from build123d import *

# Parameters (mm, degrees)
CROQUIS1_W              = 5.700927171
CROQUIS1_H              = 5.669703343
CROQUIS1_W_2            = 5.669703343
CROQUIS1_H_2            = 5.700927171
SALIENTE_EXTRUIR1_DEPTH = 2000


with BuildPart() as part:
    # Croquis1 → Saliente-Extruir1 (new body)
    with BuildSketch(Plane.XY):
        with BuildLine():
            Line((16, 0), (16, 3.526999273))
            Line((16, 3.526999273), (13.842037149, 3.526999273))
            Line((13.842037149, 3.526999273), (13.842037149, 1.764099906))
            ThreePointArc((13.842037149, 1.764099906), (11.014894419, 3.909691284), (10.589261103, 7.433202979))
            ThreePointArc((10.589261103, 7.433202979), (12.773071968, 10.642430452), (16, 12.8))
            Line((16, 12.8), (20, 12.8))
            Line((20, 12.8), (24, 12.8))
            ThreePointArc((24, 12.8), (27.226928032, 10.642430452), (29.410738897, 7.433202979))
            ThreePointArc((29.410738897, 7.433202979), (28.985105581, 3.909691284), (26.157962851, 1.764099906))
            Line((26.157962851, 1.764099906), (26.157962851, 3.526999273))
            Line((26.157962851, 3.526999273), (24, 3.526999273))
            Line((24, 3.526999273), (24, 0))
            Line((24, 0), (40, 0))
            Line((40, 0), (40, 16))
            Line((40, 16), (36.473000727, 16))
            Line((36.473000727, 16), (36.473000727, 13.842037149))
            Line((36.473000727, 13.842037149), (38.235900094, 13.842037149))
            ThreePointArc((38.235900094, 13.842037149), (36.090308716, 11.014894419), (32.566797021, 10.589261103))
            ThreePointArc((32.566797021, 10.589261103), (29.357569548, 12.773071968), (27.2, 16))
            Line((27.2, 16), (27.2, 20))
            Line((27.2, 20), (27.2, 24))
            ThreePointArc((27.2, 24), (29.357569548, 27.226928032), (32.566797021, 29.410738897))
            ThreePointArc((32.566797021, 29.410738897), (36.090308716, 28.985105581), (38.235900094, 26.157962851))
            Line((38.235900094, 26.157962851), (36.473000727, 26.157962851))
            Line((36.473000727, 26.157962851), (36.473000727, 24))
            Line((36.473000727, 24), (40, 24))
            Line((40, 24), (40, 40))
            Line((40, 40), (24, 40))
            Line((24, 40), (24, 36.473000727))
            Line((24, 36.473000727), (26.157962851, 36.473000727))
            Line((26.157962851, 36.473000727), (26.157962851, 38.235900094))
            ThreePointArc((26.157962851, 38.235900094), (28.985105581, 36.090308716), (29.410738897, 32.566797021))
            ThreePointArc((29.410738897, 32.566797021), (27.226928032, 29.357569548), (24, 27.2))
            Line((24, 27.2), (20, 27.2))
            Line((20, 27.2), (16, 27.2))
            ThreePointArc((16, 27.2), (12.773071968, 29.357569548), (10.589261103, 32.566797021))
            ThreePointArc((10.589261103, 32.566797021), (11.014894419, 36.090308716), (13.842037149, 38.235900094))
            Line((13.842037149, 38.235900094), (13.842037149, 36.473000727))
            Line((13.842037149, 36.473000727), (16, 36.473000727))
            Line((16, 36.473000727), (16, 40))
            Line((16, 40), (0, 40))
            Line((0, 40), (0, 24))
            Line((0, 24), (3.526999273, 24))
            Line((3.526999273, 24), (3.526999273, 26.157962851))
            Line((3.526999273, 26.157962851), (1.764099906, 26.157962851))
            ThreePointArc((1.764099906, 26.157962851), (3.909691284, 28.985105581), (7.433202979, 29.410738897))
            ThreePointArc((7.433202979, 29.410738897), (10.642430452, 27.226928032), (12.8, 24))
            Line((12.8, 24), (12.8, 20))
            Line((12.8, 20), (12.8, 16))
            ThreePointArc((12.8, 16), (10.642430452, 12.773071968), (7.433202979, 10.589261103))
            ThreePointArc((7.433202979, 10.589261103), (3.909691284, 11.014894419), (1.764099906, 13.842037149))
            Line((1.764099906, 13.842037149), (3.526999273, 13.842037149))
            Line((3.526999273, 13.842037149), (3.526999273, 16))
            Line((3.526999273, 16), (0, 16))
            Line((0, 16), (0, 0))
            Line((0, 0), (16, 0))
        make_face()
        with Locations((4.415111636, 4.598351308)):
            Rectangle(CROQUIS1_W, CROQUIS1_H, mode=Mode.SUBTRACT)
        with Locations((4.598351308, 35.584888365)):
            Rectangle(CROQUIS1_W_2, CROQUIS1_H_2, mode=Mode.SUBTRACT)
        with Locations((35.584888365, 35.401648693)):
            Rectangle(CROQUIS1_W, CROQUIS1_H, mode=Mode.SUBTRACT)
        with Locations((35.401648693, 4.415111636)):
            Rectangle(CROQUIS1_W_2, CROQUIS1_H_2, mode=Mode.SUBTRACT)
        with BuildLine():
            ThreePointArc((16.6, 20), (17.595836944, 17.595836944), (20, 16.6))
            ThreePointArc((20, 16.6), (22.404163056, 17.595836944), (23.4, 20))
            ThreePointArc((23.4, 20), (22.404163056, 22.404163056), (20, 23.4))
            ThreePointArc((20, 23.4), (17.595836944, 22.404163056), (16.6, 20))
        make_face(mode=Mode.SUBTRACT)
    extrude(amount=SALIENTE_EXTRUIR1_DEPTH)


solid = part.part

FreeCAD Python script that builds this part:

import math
import FreeCAD as App
import Part
import Sketcher
from FreeCAD import Vector
Q = App.Units.Quantity

doc = App.newDocument("Part")
body = doc.addObject("PartDesign::Body", "Body")

sketch1 = doc.addObject("Sketcher::SketchObject", "Sketch")
body.addObject(sketch1)
sketch1.AttachmentSupport = (doc.XY_Plane, [""])
sketch1.MapMode = "FlatFace"
sketch1.addGeometry([
    Part.LineSegment(Vector(16, 0, 0), Vector(16, 3.5, 0)),
    Part.LineSegment(Vector(16, 3.5, 0), Vector(13.8, 3.5, 0)),
    Part.LineSegment(Vector(13.8, 3.5, 0), Vector(13.8, 1.8, 0)),
    Part.ArcOfCircle(Part.Circle(Vector(15, 6.2, 0), Vector(0, 0, 1), 4.5), math.radians(164), math.radians(256)),
    Part.ArcOfCircle(Part.Circle(Vector(19.9, 3.4, 0), Vector(0, 0, 1), 10.2), math.radians(113), math.radians(157)),
    Part.LineSegment(Vector(16, 12.8, 0), Vector(24, 12.8, 0)),
    Part.ArcOfCircle(Part.Circle(Vector(20.1, 3.4, 0), Vector(0, 0, 1), 10.2), math.radians(23), math.radians(67)),
    Part.ArcOfCircle(Part.Circle(Vector(25, 6.2, 0), Vector(0, 0, 1), 4.5), math.radians(-76), math.radians(16)),
    Part.LineSegment(Vector(26.2, 1.8, 0), Vector(26.2, 3.5, 0)),
    Part.LineSegment(Vector(26.2, 3.5, 0), Vector(24, 3.5, 0)),
    Part.LineSegment(Vector(24, 3.5, 0), Vector(24, 0, 0)),
    Part.LineSegment(Vector(24, 0, 0), Vector(40, 0, 0)),
    Part.LineSegment(Vector(40, 0, 0), Vector(40, 16, 0)),
    Part.LineSegment(Vector(40, 16, 0), Vector(36.5, 16, 0)),
    Part.LineSegment(Vector(36.5, 16, 0), Vector(36.5, 13.8, 0)),
    Part.LineSegment(Vector(36.5, 13.8, 0), Vector(38.2, 13.8, 0)),
    Part.ArcOfCircle(Part.Circle(Vector(33.8, 15, 0), Vector(0, 0, 1), 4.5), math.radians(-106), math.radians(-14)),
    Part.ArcOfCircle(Part.Circle(Vector(36.6, 19.9, 0), Vector(0, 0, 1), 10.2), math.radians(-157), math.radians(-113)),
    Part.LineSegment(Vector(27.2, 16, 0), Vector(27.2, 24, 0)),
    Part.ArcOfCircle(Part.Circle(Vector(36.6, 20.1, 0), Vector(0, 0, 1), 10.2), math.radians(113), math.radians(157)),
    Part.ArcOfCircle(Part.Circle(Vector(33.8, 25, 0), Vector(0, 0, 1), 4.5), math.radians(14), math.radians(106)),
    Part.LineSegment(Vector(38.2, 26.2, 0), Vector(36.5, 26.2, 0)),
    Part.LineSegment(Vector(36.5, 26.2, 0), Vector(36.5, 24, 0)),
    Part.LineSegment(Vector(36.5, 24, 0), Vector(40, 24, 0)),
    Part.LineSegment(Vector(40, 24, 0), Vector(40, 40, 0)),
    Part.LineSegment(Vector(40, 40, 0), Vector(24, 40, 0)),
    Part.LineSegment(Vector(24, 40, 0), Vector(24, 36.5, 0)),
    Part.LineSegment(Vector(24, 36.5, 0), Vector(26.2, 36.5, 0)),
    Part.LineSegment(Vector(26.2, 36.5, 0), Vector(26.2, 38.2, 0)),
    Part.ArcOfCircle(Part.Circle(Vector(25, 33.8, 0), Vector(0, 0, 1), 4.5), math.radians(-16), math.radians(76)),
    Part.ArcOfCircle(Part.Circle(Vector(20.1, 36.6, 0), Vector(0, 0, 1), 10.2), math.radians(-67), math.radians(-23)),
    Part.LineSegment(Vector(24, 27.2, 0), Vector(16, 27.2, 0)),
    Part.ArcOfCircle(Part.Circle(Vector(19.9, 36.6, 0), Vector(0, 0, 1), 10.2), math.radians(-157), math.radians(-113)),
    Part.ArcOfCircle(Part.Circle(Vector(15, 33.8, 0), Vector(0, 0, 1), 4.5), math.radians(104), math.radians(196)),
    Part.LineSegment(Vector(13.8, 38.2, 0), Vector(13.8, 36.5, 0)),
    Part.LineSegment(Vector(13.8, 36.5, 0), Vector(16, 36.5, 0)),
    Part.LineSegment(Vector(16, 36.5, 0), Vector(16, 40, 0)),
    Part.LineSegment(Vector(16, 40, 0), Vector(0, 40, 0)),
    Part.LineSegment(Vector(0, 40, 0), Vector(0, 24, 0)),
    Part.LineSegment(Vector(0, 24, 0), Vector(3.5, 24, 0)),
    Part.LineSegment(Vector(3.5, 24, 0), Vector(3.5, 26.2, 0)),
    Part.LineSegment(Vector(3.5, 26.2, 0), Vector(1.8, 26.2, 0)),
    Part.ArcOfCircle(Part.Circle(Vector(6.2, 25, 0), Vector(0, 0, 1), 4.5), math.radians(74), math.radians(166)),
    Part.ArcOfCircle(Part.Circle(Vector(3.4, 20.1, 0), Vector(0, 0, 1), 10.2), math.radians(23), math.radians(67)),
    Part.LineSegment(Vector(12.8, 24, 0), Vector(12.8, 16, 0)),
    Part.ArcOfCircle(Part.Circle(Vector(3.4, 19.9, 0), Vector(0, 0, 1), 10.2), math.radians(-67), math.radians(-23)),
    Part.ArcOfCircle(Part.Circle(Vector(6.2, 15, 0), Vector(0, 0, 1), 4.5), math.radians(-166), math.radians(-74)),
    Part.LineSegment(Vector(1.8, 13.8, 0), Vector(3.5, 13.8, 0)),
    Part.LineSegment(Vector(3.5, 13.8, 0), Vector(3.5, 16, 0)),
    Part.LineSegment(Vector(3.5, 16, 0), Vector(0, 16, 0)),
    Part.LineSegment(Vector(0, 16, 0), Vector(0, 0, 0)),
    Part.LineSegment(Vector(0, 0, 0), Vector(16, 0, 0)),
    Part.LineSegment(Vector(7.3, 1.8, 0), Vector(1.6, 1.8, 0)),
    Part.LineSegment(Vector(1.6, 1.8, 0), Vector(1.6, 7.4, 0)),
    Part.LineSegment(Vector(1.6, 7.4, 0), Vector(7.3, 7.4, 0)),
    Part.LineSegment(Vector(7.3, 7.4, 0), Vector(7.3, 1.8, 0)),
    Part.ArcOfCircle(Part.Circle(Vector(20, 20, 0), Vector(0, 0, 1), 3.4), math.radians(180), math.radians(270)),
    Part.ArcOfCircle(Part.Circle(Vector(20, 20, 0), Vector(0, 0, 1), 3.4), math.radians(90), math.radians(180)),
    Part.ArcOfCircle(Part.Circle(Vector(20, 20, 0), Vector(0, 0, 1), 3.4), math.radians(0), math.radians(90)),
    Part.ArcOfCircle(Part.Circle(Vector(20, 20, 0), Vector(0, 0, 1), 3.4), math.radians(-90), math.radians(0)),
    Part.LineSegment(Vector(38.2, 1.6, 0), Vector(32.6, 1.6, 0)),
    Part.LineSegment(Vector(32.6, 1.6, 0), Vector(32.6, 7.3, 0)),
    Part.LineSegment(Vector(32.6, 7.3, 0), Vector(38.2, 7.3, 0)),
    Part.LineSegment(Vector(38.2, 7.3, 0), Vector(38.2, 1.6, 0)),
    Part.LineSegment(Vector(7.4, 32.7, 0), Vector(1.8, 32.7, 0)),
    Part.LineSegment(Vector(1.8, 32.7, 0), Vector(1.8, 38.4, 0)),
    Part.LineSegment(Vector(1.8, 38.4, 0), Vector(7.4, 38.4, 0)),
    Part.LineSegment(Vector(7.4, 38.4, 0), Vector(7.4, 32.7, 0)),
    Part.LineSegment(Vector(38.4, 32.6, 0), Vector(32.7, 32.6, 0)),
    Part.LineSegment(Vector(32.7, 32.6, 0), Vector(32.7, 38.2, 0)),
    Part.LineSegment(Vector(32.7, 38.2, 0), Vector(38.4, 38.2, 0)),
    Part.LineSegment(Vector(38.4, 38.2, 0), Vector(38.4, 32.6, 0)),
], False)
sketch1.addConstraint([
    Sketcher.Constraint("Coincident", 0, 2, 1, 1),
    Sketcher.Constraint("Coincident", 1, 2, 2, 1),
    Sketcher.Constraint("Coincident", 2, 2, 3, 2),
    Sketcher.Constraint("Coincident", 3, 1, 4, 2),
    Sketcher.Constraint("Coincident", 4, 1, 5, 1),
    Sketcher.Constraint("Coincident", 5, 2, 6, 2),
    Sketcher.Constraint("Coincident", 6, 1, 7, 2),
    Sketcher.Constraint("Coincident", 7, 1, 8, 1),
    Sketcher.Constraint("Coincident", 8, 2, 9, 1),
    Sketcher.Constraint("Coincident", 9, 2, 10, 1),
    Sketcher.Constraint("Coincident", 10, 2, 11, 1),
    Sketcher.Constraint("Coincident", 11, 2, 12, 1),
    Sketcher.Constraint("Coincident", 12, 2, 13, 1),
    Sketcher.Constraint("Coincident", 13, 2, 14, 1),
    Sketcher.Constraint("Coincident", 14, 2, 15, 1),
    Sketcher.Constraint("Coincident", 15, 2, 16, 2),
    Sketcher.Constraint("Coincident", 16, 1, 17, 2),
    Sketcher.Constraint("Coincident", 17, 1, 18, 1),
    Sketcher.Constraint("Coincident", 18, 2, 19, 2),
    Sketcher.Constraint("Coincident", 19, 1, 20, 2),
    Sketcher.Constraint("Coincident", 20, 1, 21, 1),
    Sketcher.Constraint("Coincident", 21, 2, 22, 1),
    Sketcher.Constraint("Coincident", 22, 2, 23, 1),
    Sketcher.Constraint("Coincident", 23, 2, 24, 1),
    Sketcher.Constraint("Coincident", 24, 2, 25, 1),
    Sketcher.Constraint("Coincident", 25, 2, 26, 1),
    Sketcher.Constraint("Coincident", 26, 2, 27, 1),
    Sketcher.Constraint("Coincident", 27, 2, 28, 1),
    Sketcher.Constraint("Coincident", 28, 2, 29, 2),
    Sketcher.Constraint("Coincident", 29, 1, 30, 2),
    Sketcher.Constraint("Coincident", 30, 1, 31, 1),
    Sketcher.Constraint("Coincident", 31, 2, 32, 2),
    Sketcher.Constraint("Coincident", 32, 1, 33, 2),
    Sketcher.Constraint("Coincident", 33, 1, 34, 1),
    Sketcher.Constraint("Coincident", 34, 2, 35, 1),
    Sketcher.Constraint("Coincident", 35, 2, 36, 1),
    Sketcher.Constraint("Coincident", 36, 2, 37, 1),
    Sketcher.Constraint("Coincident", 37, 2, 38, 1),
    Sketcher.Constraint("Coincident", 38, 2, 39, 1),
    Sketcher.Constraint("Coincident", 39, 2, 40, 1),
    Sketcher.Constraint("Coincident", 40, 2, 41, 1),
    Sketcher.Constraint("Coincident", 41, 2, 42, 2),
    Sketcher.Constraint("Coincident", 42, 1, 43, 2),
    Sketcher.Constraint("Coincident", 43, 1, 44, 1),
    Sketcher.Constraint("Coincident", 44, 2, 45, 2),
    Sketcher.Constraint("Coincident", 45, 1, 46, 2),
    Sketcher.Constraint("Coincident", 46, 1, 47, 1),
    Sketcher.Constraint("Coincident", 47, 2, 48, 1),
    Sketcher.Constraint("Coincident", 48, 2, 49, 1),
    Sketcher.Constraint("Coincident", 49, 2, 50, 1),
    Sketcher.Constraint("Coincident", 50, 2, 51, 1),
    Sketcher.Constraint("Coincident", 51, 2, 0, 1),
    Sketcher.Constraint("Coincident", 52, 2, 53, 1),
    Sketcher.Constraint("Coincident", 53, 2, 54, 1),
    Sketcher.Constraint("Coincident", 54, 2, 55, 1),
    Sketcher.Constraint("Coincident", 55, 2, 52, 1),
    Sketcher.Constraint("Tangent", 56, 1, 57, 2),
    Sketcher.Constraint("Tangent", 57, 1, 58, 2),
    Sketcher.Constraint("Tangent", 58, 1, 59, 2),
    Sketcher.Constraint("Tangent", 59, 1, 56, 2),
    Sketcher.Constraint("Coincident", 60, 2, 61, 1),
    Sketcher.Constraint("Coincident", 61, 2, 62, 1),
    Sketcher.Constraint("Coincident", 62, 2, 63, 1),
    Sketcher.Constraint("Coincident", 63, 2, 60, 1),
    Sketcher.Constraint("Coincident", 64, 2, 65, 1),
    Sketcher.Constraint("Coincident", 65, 2, 66, 1),
    Sketcher.Constraint("Coincident", 66, 2, 67, 1),
    Sketcher.Constraint("Coincident", 67, 2, 64, 1),
    Sketcher.Constraint("Coincident", 68, 2, 69, 1),
    Sketcher.Constraint("Coincident", 69, 2, 70, 1),
    Sketcher.Constraint("Coincident", 70, 2, 71, 1),
    Sketcher.Constraint("Coincident", 71, 2, 68, 1),
    Sketcher.Constraint("Vertical", 0),
    Sketcher.Constraint("Horizontal", 1),
    Sketcher.Constraint("Vertical", 2),
    Sketcher.Constraint("Horizontal", 5),
    Sketcher.Constraint("Vertical", 8),
    Sketcher.Constraint("Horizontal", 9),
    Sketcher.Constraint("Vertical", 10),
    Sketcher.Constraint("Horizontal", 11),
    Sketcher.Constraint("Vertical", 12),
    Sketcher.Constraint("Horizontal", 13),
    Sketcher.Constraint("Vertical", 14),
    Sketcher.Constraint("Horizontal", 15),
    Sketcher.Constraint("Vertical", 18),
    Sketcher.Constraint("Horizontal", 21),
    Sketcher.Constraint("Vertical", 22),
    Sketcher.Constraint("Horizontal", 23),
    Sketcher.Constraint("Vertical", 24),
    Sketcher.Constraint("Horizontal", 25),
    Sketcher.Constraint("Vertical", 26),
    Sketcher.Constraint("Horizontal", 27),
    Sketcher.Constraint("Vertical", 28),
    Sketcher.Constraint("Horizontal", 31),
    Sketcher.Constraint("Vertical", 34),
    Sketcher.Constraint("Horizontal", 35),
    Sketcher.Constraint("Vertical", 36),
    Sketcher.Constraint("Horizontal", 37),
    Sketcher.Constraint("Vertical", 38),
    Sketcher.Constraint("Horizontal", 39),
    Sketcher.Constraint("Vertical", 40),
    Sketcher.Constraint("Horizontal", 41),
    Sketcher.Constraint("Vertical", 44),
    Sketcher.Constraint("Horizontal", 47),
    Sketcher.Constraint("Vertical", 48),
    Sketcher.Constraint("Horizontal", 49),
    Sketcher.Constraint("Vertical", 50),
    Sketcher.Constraint("Horizontal", 51),
    Sketcher.Constraint("Horizontal", 52),
    Sketcher.Constraint("Vertical", 53),
    Sketcher.Constraint("Horizontal", 54),
    Sketcher.Constraint("Vertical", 55),
    Sketcher.Constraint("Horizontal", 60),
    Sketcher.Constraint("Vertical", 61),
    Sketcher.Constraint("Horizontal", 62),
    Sketcher.Constraint("Vertical", 63),
    Sketcher.Constraint("Horizontal", 64),
    Sketcher.Constraint("Vertical", 65),
    Sketcher.Constraint("Horizontal", 66),
    Sketcher.Constraint("Vertical", 67),
    Sketcher.Constraint("Horizontal", 68),
    Sketcher.Constraint("Vertical", 69),
    Sketcher.Constraint("Horizontal", 70),
    Sketcher.Constraint("Vertical", 71),
    Sketcher.Constraint("Coincident", 50, 2, -1, 1),
    Sketcher.Constraint("Equal", 4, 6),
    Sketcher.Constraint("Equal", 3, 7),
    Sketcher.Constraint("Equal", 7, 16),
    Sketcher.Constraint("Equal", 6, 17),
    Sketcher.Constraint("Equal", 17, 19),
    Sketcher.Constraint("Equal", 16, 20),
    Sketcher.Constraint("Equal", 20, 29),
    Sketcher.Constraint("Equal", 19, 30),
    Sketcher.Constraint("Equal", 30, 32),
    Sketcher.Constraint("Equal", 29, 33),
    Sketcher.Constraint("Equal", 33, 42),
    Sketcher.Constraint("Equal", 32, 43),
    Sketcher.Constraint("Equal", 43, 45),
    Sketcher.Constraint("Equal", 42, 46),
    Sketcher.Constraint("Equal", 56, 57),
    Sketcher.Constraint("PointOnObject", 10, 2, -1),
    Sketcher.Constraint("PointOnObject", 37, 2, -2),
    Sketcher.Constraint("Horizontal", 4, 3, 6, 3),
    Sketcher.Constraint("Horizontal", 3, 3, 7, 3),
    Sketcher.Constraint("Horizontal", 30, 3, 32, 3),
    Sketcher.Constraint("Horizontal", 29, 3, 33, 3),
    Sketcher.Constraint("Horizontal", 20, 3, 42, 3),
    Sketcher.Constraint("Horizontal", 19, 3, 43, 3),
    Sketcher.Constraint("Horizontal", 17, 3, 45, 3),
    Sketcher.Constraint("Horizontal", 16, 3, 46, 3),
    Sketcher.Constraint("Horizontal", 3, 1, 6, 1),
    Sketcher.Constraint("Horizontal", 2, 2, 7, 1),
    Sketcher.Constraint("Horizontal", 1, 2, 8, 2),
    Sketcher.Constraint("Horizontal", 13, 2, 17, 1),
    Sketcher.Constraint("Horizontal", 18, 2, 22, 2),
    Sketcher.Constraint("Horizontal", 29, 1, 32, 1),
    Sketcher.Constraint("Horizontal", 28, 2, 33, 1),
    Sketcher.Constraint("Horizontal", 27, 2, 34, 2),
    Sketcher.Constraint("Horizontal", 25, 2, 36, 2),
    Sketcher.Constraint("Horizontal", 23, 2, 38, 2),
    Sketcher.Constraint("Horizontal", 21, 2, 40, 2),
    Sketcher.Constraint("Horizontal", 19, 1, 42, 1),
    Sketcher.Constraint("Horizontal", 39, 2, 43, 1),
    Sketcher.Constraint("Horizontal", 17, 1, 44, 2),
    Sketcher.Constraint("Horizontal", 16, 1, 45, 1),
    Sketcher.Constraint("Horizontal", 15, 2, 46, 1),
    Sketcher.Constraint("Horizontal", 44, 2, 48, 2),
    Sketcher.Constraint("Horizontal", 6, 1, 53, 2),
    Sketcher.Constraint("Horizontal", 59, 3, 56, 1),
    Sketcher.Constraint("Horizontal", 56, 1, 58, 1),
    Sketcher.Constraint("Horizontal", 32, 1, 68, 2),
    Sketcher.Constraint("Vertical", 17, 3, 19, 3),
    Sketcher.Constraint("Vertical", 16, 3, 20, 3),
    Sketcher.Constraint("Vertical", 7, 3, 29, 3),
    Sketcher.Constraint("Vertical", 6, 3, 30, 3),
    Sketcher.Constraint("Vertical", 4, 3, 32, 3),
    Sketcher.Constraint("Vertical", 0, 2, 4, 1),
    Sketcher.Constraint("Vertical", 5, 2, 9, 2),
    Sketcher.Constraint("Vertical", 16, 1, 19, 1),
    Sketcher.Constraint("Vertical", 15, 2, 20, 1),
    Sketcher.Constraint("Vertical", 14, 2, 21, 2),
    Sketcher.Constraint("Vertical", 12, 2, 23, 2),
    Sketcher.Constraint("Vertical", 10, 2, 25, 2),
    Sketcher.Constraint("Vertical", 8, 2, 27, 2),
    Sketcher.Constraint("Vertical", 6, 1, 29, 1),
    Sketcher.Constraint("Vertical", 26, 2, 30, 1),
    Sketcher.Constraint("Vertical", 31, 2, 35, 2),
    Sketcher.Constraint("Vertical", 40, 2, 47, 2),
    Sketcher.Constraint("Vertical", 59, 3, 57, 1),
    Sketcher.Constraint("Vertical", 57, 1, 59, 1),
    Sketcher.Constraint("Vertical", 19, 1, 60, 2),
    Sketcher.Constraint("Vertical", 45, 1, 66, 2),
    Sketcher.Constraint("Equal", 25, 37),
    Sketcher.Constraint("Equal", 23, 39),
    Sketcher.Constraint("Equal", 21, 41),
    Sketcher.Constraint("Equal", 62, 64),
    Sketcher.Constraint("Equal", 54, 68),
    Sketcher.Constraint("Equal", 49, 0),
    Sketcher.Constraint("Equal", 47, 2),
    Sketcher.Constraint("Equal", 51, 12),
    Sketcher.Constraint("Equal", 35, 14),
    Sketcher.Constraint("Equal", 31, 18),
    Sketcher.Constraint("Equal", 12, 24),
    Sketcher.Constraint("Equal", 10, 26),
    Sketcher.Constraint("Equal", 8, 28),
    Sketcher.Constraint("Equal", 66, 53),
    Sketcher.Constraint("Equal", 70, 61),
    Sketcher.Constraint("Equal", 63, 65),
    Sketcher.Constraint("Equal", 55, 69),
    Sketcher.Constraint("Radius", 56, Q("3.4 mm")),
    Sketcher.Constraint("DistanceX", 5, 1, 5, 2, Q("8 mm")),
    Sketcher.Constraint("DistanceX", 11, 1, 11, 2, Q("16 mm")),
    Sketcher.Constraint("DistanceX", -1, 1, 56, 3, Q("20 mm")),
    Sketcher.Constraint("DistanceY", -1, 1, 56, 3, Q("20 mm")),
    Sketcher.Constraint("DistanceY", -1, 1, 4, 1, Q("12.8 mm")),
    Sketcher.Constraint("DistanceX", -1, 1, 17, 1, Q("27.2 mm")),
    Sketcher.Constraint("DistanceX", 13, 2, 13, 1, Q("3.526999 mm")),
    Sketcher.Constraint("Radius", 4, Q("10.17266 mm")),
    Sketcher.Constraint("DistanceX", 15, 1, 15, 2, Q("1.762899 mm")),
    Sketcher.Constraint("Radius", 3, Q("4.549472 mm")),
    Sketcher.Constraint("DistanceY", -1, 1, 52, 2, Q("1.7635 mm")),
    Sketcher.Constraint("DistanceX", -1, 1, 62, 2, Q("38.2365 mm")),
    Sketcher.Constraint("DistanceX", 1, 2, 1, 1, Q("2.157963 mm")),
    Sketcher.Constraint("DistanceX", 52, 2, 52, 1, Q("5.700927 mm")),
    Sketcher.Constraint("DistanceX", 60, 2, 60, 1, Q("5.669703 mm")),
    Sketcher.Constraint("DistanceX", -1, 1, 3, 3, Q("14.960952 mm")),
    Sketcher.Constraint("DistanceX", -1, 1, 16, 3, Q("33.826169 mm")),
    Sketcher.Constraint("DistanceX", -1, 1, 52, 2, Q("1.564648 mm")),
    Sketcher.Constraint("DistanceY", -1, 1, 60, 2, Q("1.564648 mm")),
    Sketcher.Constraint("DistanceY", -1, 1, 65, 2, Q("38.435352 mm")),
    Sketcher.Constraint("DistanceX", -1, 1, 70, 2, Q("38.435352 mm")),
])
pad1 = doc.addObject("PartDesign::Pad", "Pad")
body.addObject(pad1)
pad1.Profile = sketch1
pad1.Length = 2000

doc.recompute()
